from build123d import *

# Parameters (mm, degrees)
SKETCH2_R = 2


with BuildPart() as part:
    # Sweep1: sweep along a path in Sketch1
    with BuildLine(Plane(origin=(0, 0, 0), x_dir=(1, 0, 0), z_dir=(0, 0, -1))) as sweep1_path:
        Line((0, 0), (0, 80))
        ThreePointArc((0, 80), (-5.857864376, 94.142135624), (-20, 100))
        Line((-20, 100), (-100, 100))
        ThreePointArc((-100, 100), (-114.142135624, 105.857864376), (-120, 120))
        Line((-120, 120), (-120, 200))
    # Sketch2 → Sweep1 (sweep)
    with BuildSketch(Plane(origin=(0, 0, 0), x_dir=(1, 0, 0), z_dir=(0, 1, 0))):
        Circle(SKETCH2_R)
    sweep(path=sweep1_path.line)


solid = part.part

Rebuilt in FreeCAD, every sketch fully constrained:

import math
import FreeCAD as App
import Part
import Sketcher

V = App.Vector
Q = App.Units.Quantity

doc = App.newDocument("Part")
body = doc.addObject("PartDesign::Body", "Body")

# Sketch on XZ plane
sketch1 = doc.addObject("Sketcher::SketchObject", "Sketch")
body.addObject(sketch1)
sketch1.AttachmentSupport = (doc.XZ_Plane, [""])
sketch1.MapMode = "FlatFace"
sketch1.addGeometry(Part.Circle(V(0, 0, 0), V(0, 0, 1), 2), False)
sketch1.addConstraint(Sketcher.Constraint("Coincident", 0, 3, -1, 1))
sketch1.addConstraint(Sketcher.Constraint("Diameter", 0, Q("4 mm")))

# Sketch on XY plane
sketch2 = doc.addObject("Sketcher::SketchObject", "Sketch001")
body.addObject(sketch2)
sketch2.AttachmentSupport = (doc.XY_Plane, [""])
sketch2.MapMode = "FlatFace"
sketch2.addGeometry(Part.LineSegment(V(0, 0, 0), V(0, -80, 0)), False)
sketch2.addGeometry(Part.ArcOfCircle(Part.Circle(V(-20, -80, 0), V(0, 0, 1), 20), math.radians(-90), math.radians(0)), False)
sketch2.addGeometry(Part.LineSegment(V(-20, -100, 0), V(-100, -100, 0)), False)
sketch2.addGeometry(Part.ArcOfCircle(Part.Circle(V(-100, -120, 0), V(0, 0, 1), 20), math.radians(90), math.radians(180)), False)
sketch2.addGeometry(Part.LineSegment(V(-120, -120, 0), V(-120, -200, 0)), False)
sketch2.addConstraint(Sketcher.Constraint("Tangent", 0, 2, 1, 2))
sketch2.addConstraint(Sketcher.Constraint("Tangent", 1, 1, 2, 1))
sketch2.addConstraint(Sketcher.Constraint("Tangent", 2, 2, 3, 1))
sketch2.addConstraint(Sketcher.Constraint("Tangent", 3, 2, 4, 1))
sketch2.addConstraint(Sketcher.Constraint("Vertical", 0))
sketch2.addConstraint(Sketcher.Constraint("Horizontal", 2))
sketch2.addConstraint(Sketcher.Constraint("Vertical", 4))
sketch2.addConstraint(Sketcher.Constraint("Coincident", 0, 1, -1, 1))
sketch2.addConstraint(Sketcher.Constraint("Equal", 1, 3))
sketch2.addConstraint(Sketcher.Constraint("Equal", 2, 0))
sketch2.addConstraint(Sketcher.Constraint("Equal", 0, 4))
sketch2.addConstraint(Sketcher.Constraint("Radius", 1, Q("20 mm")))
sketch2.addConstraint(Sketcher.Constraint("DistanceX", 2, 2, 2, 1, Q("80 mm")))
doc.recompute()

additivepipe = doc.addObject("PartDesign::AdditivePipe", "AdditivePipe")
body.addObject(additivepipe)
additivepipe.Profile = sketch1
additivepipe.Spine = (sketch2, ["Edge1", "Edge2", "Edge3", "Edge4", "Edge5"])

doc.recompute()
